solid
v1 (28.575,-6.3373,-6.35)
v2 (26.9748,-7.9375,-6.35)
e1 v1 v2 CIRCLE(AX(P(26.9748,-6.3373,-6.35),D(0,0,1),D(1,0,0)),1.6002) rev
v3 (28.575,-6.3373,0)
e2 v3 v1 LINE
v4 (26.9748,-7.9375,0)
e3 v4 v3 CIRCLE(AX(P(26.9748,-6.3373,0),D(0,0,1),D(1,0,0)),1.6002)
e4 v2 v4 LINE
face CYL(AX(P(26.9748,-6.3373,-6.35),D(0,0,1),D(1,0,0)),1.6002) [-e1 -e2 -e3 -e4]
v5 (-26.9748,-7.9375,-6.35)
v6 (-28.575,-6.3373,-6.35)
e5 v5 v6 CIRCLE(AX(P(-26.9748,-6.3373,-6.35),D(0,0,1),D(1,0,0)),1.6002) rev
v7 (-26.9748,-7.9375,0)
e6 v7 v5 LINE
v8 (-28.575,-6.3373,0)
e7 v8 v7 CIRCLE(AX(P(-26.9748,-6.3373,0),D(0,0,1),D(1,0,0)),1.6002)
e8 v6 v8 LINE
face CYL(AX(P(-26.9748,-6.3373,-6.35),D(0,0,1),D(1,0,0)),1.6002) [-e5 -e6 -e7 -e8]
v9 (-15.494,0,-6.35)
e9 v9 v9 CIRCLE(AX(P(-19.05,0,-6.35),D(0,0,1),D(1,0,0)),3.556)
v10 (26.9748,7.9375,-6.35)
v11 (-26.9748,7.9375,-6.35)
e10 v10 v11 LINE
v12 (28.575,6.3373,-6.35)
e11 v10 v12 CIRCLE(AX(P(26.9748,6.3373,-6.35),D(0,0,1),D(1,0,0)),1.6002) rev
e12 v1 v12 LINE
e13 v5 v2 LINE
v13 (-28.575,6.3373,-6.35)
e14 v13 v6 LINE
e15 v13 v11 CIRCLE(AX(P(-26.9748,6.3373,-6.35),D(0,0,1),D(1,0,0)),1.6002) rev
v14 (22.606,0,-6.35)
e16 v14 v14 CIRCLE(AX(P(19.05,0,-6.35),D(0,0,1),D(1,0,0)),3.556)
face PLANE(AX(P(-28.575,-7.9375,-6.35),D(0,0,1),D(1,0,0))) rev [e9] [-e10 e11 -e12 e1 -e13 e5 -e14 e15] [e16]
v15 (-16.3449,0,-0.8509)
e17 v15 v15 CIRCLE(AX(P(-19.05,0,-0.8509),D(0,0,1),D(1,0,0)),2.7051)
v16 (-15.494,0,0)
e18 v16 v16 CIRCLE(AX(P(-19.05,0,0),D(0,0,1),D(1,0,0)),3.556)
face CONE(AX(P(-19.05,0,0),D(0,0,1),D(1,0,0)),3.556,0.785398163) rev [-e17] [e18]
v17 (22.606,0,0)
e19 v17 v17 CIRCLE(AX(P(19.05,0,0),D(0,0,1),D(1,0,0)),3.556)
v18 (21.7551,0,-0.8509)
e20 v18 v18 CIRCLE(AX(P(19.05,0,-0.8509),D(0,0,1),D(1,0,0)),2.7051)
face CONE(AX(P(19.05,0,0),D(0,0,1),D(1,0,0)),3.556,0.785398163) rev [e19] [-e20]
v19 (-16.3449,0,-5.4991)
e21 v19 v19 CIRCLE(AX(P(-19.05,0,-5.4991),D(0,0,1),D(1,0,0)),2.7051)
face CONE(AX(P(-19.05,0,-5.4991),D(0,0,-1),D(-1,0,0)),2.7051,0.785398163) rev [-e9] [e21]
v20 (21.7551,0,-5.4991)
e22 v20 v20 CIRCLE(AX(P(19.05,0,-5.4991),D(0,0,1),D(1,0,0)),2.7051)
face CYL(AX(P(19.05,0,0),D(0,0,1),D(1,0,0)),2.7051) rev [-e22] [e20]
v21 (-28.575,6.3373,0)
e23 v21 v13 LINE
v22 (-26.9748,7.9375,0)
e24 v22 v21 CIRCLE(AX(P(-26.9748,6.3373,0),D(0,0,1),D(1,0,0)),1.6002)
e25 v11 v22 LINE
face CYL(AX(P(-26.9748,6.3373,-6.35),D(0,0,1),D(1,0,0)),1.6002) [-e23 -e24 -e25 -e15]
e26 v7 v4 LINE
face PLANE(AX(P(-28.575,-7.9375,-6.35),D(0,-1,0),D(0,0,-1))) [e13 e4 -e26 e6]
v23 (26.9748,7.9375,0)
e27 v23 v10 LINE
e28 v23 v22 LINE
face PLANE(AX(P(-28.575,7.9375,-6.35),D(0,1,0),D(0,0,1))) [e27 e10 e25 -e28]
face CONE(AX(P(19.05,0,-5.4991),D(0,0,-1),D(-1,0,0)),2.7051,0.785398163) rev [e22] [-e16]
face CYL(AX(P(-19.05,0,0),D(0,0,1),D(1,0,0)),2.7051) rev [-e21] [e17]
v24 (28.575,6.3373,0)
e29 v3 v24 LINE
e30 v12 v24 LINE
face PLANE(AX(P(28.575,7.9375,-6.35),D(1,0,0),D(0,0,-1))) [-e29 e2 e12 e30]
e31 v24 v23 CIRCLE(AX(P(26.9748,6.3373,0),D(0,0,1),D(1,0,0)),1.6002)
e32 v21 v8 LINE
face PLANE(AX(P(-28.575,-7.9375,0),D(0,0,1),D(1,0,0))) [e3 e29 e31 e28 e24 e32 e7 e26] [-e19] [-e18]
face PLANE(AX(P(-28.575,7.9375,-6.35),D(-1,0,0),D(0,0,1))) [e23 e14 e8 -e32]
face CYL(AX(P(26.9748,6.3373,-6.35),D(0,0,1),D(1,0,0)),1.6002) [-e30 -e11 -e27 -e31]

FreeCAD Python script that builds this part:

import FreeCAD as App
import Part
import Sketcher
Q = App.Units.Quantity


def edges_at(feature, points):
    """Names of the edges that pass closest to the given points."""
    edges = feature.Shape.Edges
    near = lambda p: min(range(len(edges)), key=lambda i: edges[i].distToShape(Part.Vertex(*p))[0])
    return sorted({f"Edge{near(p) + 1}" for p in points})


def add_polygon(sketch, points):
    """Adds a closed chain of lines whose ends are joined by coincident constraints."""
    first, n = sketch.GeometryCount, len(points)
    for a, b in zip(points, points[1:] + points[:1]):
        sketch.addGeometry(Part.LineSegment(App.Vector(*a, 0), App.Vector(*b, 0)), False)
    for i in range(n):
        sketch.addConstraint(Sketcher.Constraint("Coincident", first + i, 2, first + (i + 1) % n, 1))

doc = App.newDocument("Part")
body = doc.addObject("PartDesign::Body", "Body")

# Sketch on XY plane
sketch1 = body.newObject("Sketcher::SketchObject", "Sketch")
sketch1.AttachmentSupport = (doc.getObject("XY_Plane"), [""])
sketch1.MapMode = "FlatFace"
add_polygon(sketch1, [(-28.575, 7.9375), (-28.575, -7.9375), (28.575, -7.9375), (28.575, 7.9375)])  # lines 0-3
sketch1.addConstraint([
    Sketcher.Constraint("Vertical", 0),
    Sketcher.Constraint("Horizontal", 1),
    Sketcher.Constraint("Vertical", 2),
    Sketcher.Constraint("Horizontal", 3),
    Sketcher.Constraint("Symmetric", 0, 2, 2, 2, -1, 1),
    Sketcher.Constraint("DistanceX", 1, 1, 1, 2, Q("2.25 in")),
    Sketcher.Constraint("DistanceY", 0, 2, 0, 1, Q("0.625 in")),
])
pad1 = body.newObject("PartDesign::Pad", "Pad")
pad1.Profile = sketch1
pad1.Length = Q("0.25 in")
pad1.Reversed = True

# Sketch on YZ plane
sketch2 = body.newObject("Sketcher::SketchObject", "Sketch001")
sketch2.AttachmentSupport = (doc.getObject("YZ_Plane"), [""])
sketch2.MapMode = "FlatFace"
sketch2.AttachmentOffset = App.Placement(App.Vector(0, 0, 0.75 * 25.4), App.Rotation())
add_polygon(sketch2, [(0, -6.35), (0, 0), (-3.556, 0), (-2.7051, -0.8509), (-2.7051, -5.4991), (-3.556, -6.35)])  # lines 0-5
sketch2.addConstraint([
    Sketcher.Constraint("Vertical", 0),
    Sketcher.Constraint("Horizontal", 1),
    Sketcher.Constraint("Vertical", 3),
    Sketcher.Constraint("Horizontal", 5),
    Sketcher.Constraint("Coincident", 0, 2, -1, 1),
    Sketcher.Constraint("Perpendicular", 2, 4),
    Sketcher.Constraint("Vertical", 1, 2, 4, 2),
    Sketcher.Constraint("Equal", 2, 4),
    Sketcher.Constraint("DistanceX", 1, 2, 1, 1, Q("0.14 in")),
    Sketcher.Constraint("DistanceY", 0, 1, 0, 2, Q("0.25 in")),
    Sketcher.Constraint("DistanceY", 3, 2, 3, 1, Q("0.183 in")),
])
groove = body.newObject("PartDesign::Groove", "Groove")
groove.Profile = sketch2
groove.ReferenceAxis = (sketch2, ["V_Axis"])
groove.Angle = 360
doc.recompute()

linearpattern = body.newObject("PartDesign::LinearPattern", "LinearPattern")
linearpattern.Originals = [groove]
linearpattern.Direction = (doc.getObject("X_Axis"), [""])
linearpattern.Mode = "offset"
linearpattern.Offset = Q("1.5 in")
linearpattern.Occurrences = 2
linearpattern.Reversed = True
body.Tip = linearpattern
doc.recompute()

fillet = body.newObject("PartDesign::Fillet", "Fillet")
fillet.Base = (linearpattern, edges_at(linearpattern, [
    (-28.575, 7.938, -3.175),
    (28.575, 7.938, -3.175),
    (28.575, -7.938, -3.175),
    (-28.575, -7.938, -3.175),
]))
fillet.Radius = Q("0.063 in")

doc.recompute()
